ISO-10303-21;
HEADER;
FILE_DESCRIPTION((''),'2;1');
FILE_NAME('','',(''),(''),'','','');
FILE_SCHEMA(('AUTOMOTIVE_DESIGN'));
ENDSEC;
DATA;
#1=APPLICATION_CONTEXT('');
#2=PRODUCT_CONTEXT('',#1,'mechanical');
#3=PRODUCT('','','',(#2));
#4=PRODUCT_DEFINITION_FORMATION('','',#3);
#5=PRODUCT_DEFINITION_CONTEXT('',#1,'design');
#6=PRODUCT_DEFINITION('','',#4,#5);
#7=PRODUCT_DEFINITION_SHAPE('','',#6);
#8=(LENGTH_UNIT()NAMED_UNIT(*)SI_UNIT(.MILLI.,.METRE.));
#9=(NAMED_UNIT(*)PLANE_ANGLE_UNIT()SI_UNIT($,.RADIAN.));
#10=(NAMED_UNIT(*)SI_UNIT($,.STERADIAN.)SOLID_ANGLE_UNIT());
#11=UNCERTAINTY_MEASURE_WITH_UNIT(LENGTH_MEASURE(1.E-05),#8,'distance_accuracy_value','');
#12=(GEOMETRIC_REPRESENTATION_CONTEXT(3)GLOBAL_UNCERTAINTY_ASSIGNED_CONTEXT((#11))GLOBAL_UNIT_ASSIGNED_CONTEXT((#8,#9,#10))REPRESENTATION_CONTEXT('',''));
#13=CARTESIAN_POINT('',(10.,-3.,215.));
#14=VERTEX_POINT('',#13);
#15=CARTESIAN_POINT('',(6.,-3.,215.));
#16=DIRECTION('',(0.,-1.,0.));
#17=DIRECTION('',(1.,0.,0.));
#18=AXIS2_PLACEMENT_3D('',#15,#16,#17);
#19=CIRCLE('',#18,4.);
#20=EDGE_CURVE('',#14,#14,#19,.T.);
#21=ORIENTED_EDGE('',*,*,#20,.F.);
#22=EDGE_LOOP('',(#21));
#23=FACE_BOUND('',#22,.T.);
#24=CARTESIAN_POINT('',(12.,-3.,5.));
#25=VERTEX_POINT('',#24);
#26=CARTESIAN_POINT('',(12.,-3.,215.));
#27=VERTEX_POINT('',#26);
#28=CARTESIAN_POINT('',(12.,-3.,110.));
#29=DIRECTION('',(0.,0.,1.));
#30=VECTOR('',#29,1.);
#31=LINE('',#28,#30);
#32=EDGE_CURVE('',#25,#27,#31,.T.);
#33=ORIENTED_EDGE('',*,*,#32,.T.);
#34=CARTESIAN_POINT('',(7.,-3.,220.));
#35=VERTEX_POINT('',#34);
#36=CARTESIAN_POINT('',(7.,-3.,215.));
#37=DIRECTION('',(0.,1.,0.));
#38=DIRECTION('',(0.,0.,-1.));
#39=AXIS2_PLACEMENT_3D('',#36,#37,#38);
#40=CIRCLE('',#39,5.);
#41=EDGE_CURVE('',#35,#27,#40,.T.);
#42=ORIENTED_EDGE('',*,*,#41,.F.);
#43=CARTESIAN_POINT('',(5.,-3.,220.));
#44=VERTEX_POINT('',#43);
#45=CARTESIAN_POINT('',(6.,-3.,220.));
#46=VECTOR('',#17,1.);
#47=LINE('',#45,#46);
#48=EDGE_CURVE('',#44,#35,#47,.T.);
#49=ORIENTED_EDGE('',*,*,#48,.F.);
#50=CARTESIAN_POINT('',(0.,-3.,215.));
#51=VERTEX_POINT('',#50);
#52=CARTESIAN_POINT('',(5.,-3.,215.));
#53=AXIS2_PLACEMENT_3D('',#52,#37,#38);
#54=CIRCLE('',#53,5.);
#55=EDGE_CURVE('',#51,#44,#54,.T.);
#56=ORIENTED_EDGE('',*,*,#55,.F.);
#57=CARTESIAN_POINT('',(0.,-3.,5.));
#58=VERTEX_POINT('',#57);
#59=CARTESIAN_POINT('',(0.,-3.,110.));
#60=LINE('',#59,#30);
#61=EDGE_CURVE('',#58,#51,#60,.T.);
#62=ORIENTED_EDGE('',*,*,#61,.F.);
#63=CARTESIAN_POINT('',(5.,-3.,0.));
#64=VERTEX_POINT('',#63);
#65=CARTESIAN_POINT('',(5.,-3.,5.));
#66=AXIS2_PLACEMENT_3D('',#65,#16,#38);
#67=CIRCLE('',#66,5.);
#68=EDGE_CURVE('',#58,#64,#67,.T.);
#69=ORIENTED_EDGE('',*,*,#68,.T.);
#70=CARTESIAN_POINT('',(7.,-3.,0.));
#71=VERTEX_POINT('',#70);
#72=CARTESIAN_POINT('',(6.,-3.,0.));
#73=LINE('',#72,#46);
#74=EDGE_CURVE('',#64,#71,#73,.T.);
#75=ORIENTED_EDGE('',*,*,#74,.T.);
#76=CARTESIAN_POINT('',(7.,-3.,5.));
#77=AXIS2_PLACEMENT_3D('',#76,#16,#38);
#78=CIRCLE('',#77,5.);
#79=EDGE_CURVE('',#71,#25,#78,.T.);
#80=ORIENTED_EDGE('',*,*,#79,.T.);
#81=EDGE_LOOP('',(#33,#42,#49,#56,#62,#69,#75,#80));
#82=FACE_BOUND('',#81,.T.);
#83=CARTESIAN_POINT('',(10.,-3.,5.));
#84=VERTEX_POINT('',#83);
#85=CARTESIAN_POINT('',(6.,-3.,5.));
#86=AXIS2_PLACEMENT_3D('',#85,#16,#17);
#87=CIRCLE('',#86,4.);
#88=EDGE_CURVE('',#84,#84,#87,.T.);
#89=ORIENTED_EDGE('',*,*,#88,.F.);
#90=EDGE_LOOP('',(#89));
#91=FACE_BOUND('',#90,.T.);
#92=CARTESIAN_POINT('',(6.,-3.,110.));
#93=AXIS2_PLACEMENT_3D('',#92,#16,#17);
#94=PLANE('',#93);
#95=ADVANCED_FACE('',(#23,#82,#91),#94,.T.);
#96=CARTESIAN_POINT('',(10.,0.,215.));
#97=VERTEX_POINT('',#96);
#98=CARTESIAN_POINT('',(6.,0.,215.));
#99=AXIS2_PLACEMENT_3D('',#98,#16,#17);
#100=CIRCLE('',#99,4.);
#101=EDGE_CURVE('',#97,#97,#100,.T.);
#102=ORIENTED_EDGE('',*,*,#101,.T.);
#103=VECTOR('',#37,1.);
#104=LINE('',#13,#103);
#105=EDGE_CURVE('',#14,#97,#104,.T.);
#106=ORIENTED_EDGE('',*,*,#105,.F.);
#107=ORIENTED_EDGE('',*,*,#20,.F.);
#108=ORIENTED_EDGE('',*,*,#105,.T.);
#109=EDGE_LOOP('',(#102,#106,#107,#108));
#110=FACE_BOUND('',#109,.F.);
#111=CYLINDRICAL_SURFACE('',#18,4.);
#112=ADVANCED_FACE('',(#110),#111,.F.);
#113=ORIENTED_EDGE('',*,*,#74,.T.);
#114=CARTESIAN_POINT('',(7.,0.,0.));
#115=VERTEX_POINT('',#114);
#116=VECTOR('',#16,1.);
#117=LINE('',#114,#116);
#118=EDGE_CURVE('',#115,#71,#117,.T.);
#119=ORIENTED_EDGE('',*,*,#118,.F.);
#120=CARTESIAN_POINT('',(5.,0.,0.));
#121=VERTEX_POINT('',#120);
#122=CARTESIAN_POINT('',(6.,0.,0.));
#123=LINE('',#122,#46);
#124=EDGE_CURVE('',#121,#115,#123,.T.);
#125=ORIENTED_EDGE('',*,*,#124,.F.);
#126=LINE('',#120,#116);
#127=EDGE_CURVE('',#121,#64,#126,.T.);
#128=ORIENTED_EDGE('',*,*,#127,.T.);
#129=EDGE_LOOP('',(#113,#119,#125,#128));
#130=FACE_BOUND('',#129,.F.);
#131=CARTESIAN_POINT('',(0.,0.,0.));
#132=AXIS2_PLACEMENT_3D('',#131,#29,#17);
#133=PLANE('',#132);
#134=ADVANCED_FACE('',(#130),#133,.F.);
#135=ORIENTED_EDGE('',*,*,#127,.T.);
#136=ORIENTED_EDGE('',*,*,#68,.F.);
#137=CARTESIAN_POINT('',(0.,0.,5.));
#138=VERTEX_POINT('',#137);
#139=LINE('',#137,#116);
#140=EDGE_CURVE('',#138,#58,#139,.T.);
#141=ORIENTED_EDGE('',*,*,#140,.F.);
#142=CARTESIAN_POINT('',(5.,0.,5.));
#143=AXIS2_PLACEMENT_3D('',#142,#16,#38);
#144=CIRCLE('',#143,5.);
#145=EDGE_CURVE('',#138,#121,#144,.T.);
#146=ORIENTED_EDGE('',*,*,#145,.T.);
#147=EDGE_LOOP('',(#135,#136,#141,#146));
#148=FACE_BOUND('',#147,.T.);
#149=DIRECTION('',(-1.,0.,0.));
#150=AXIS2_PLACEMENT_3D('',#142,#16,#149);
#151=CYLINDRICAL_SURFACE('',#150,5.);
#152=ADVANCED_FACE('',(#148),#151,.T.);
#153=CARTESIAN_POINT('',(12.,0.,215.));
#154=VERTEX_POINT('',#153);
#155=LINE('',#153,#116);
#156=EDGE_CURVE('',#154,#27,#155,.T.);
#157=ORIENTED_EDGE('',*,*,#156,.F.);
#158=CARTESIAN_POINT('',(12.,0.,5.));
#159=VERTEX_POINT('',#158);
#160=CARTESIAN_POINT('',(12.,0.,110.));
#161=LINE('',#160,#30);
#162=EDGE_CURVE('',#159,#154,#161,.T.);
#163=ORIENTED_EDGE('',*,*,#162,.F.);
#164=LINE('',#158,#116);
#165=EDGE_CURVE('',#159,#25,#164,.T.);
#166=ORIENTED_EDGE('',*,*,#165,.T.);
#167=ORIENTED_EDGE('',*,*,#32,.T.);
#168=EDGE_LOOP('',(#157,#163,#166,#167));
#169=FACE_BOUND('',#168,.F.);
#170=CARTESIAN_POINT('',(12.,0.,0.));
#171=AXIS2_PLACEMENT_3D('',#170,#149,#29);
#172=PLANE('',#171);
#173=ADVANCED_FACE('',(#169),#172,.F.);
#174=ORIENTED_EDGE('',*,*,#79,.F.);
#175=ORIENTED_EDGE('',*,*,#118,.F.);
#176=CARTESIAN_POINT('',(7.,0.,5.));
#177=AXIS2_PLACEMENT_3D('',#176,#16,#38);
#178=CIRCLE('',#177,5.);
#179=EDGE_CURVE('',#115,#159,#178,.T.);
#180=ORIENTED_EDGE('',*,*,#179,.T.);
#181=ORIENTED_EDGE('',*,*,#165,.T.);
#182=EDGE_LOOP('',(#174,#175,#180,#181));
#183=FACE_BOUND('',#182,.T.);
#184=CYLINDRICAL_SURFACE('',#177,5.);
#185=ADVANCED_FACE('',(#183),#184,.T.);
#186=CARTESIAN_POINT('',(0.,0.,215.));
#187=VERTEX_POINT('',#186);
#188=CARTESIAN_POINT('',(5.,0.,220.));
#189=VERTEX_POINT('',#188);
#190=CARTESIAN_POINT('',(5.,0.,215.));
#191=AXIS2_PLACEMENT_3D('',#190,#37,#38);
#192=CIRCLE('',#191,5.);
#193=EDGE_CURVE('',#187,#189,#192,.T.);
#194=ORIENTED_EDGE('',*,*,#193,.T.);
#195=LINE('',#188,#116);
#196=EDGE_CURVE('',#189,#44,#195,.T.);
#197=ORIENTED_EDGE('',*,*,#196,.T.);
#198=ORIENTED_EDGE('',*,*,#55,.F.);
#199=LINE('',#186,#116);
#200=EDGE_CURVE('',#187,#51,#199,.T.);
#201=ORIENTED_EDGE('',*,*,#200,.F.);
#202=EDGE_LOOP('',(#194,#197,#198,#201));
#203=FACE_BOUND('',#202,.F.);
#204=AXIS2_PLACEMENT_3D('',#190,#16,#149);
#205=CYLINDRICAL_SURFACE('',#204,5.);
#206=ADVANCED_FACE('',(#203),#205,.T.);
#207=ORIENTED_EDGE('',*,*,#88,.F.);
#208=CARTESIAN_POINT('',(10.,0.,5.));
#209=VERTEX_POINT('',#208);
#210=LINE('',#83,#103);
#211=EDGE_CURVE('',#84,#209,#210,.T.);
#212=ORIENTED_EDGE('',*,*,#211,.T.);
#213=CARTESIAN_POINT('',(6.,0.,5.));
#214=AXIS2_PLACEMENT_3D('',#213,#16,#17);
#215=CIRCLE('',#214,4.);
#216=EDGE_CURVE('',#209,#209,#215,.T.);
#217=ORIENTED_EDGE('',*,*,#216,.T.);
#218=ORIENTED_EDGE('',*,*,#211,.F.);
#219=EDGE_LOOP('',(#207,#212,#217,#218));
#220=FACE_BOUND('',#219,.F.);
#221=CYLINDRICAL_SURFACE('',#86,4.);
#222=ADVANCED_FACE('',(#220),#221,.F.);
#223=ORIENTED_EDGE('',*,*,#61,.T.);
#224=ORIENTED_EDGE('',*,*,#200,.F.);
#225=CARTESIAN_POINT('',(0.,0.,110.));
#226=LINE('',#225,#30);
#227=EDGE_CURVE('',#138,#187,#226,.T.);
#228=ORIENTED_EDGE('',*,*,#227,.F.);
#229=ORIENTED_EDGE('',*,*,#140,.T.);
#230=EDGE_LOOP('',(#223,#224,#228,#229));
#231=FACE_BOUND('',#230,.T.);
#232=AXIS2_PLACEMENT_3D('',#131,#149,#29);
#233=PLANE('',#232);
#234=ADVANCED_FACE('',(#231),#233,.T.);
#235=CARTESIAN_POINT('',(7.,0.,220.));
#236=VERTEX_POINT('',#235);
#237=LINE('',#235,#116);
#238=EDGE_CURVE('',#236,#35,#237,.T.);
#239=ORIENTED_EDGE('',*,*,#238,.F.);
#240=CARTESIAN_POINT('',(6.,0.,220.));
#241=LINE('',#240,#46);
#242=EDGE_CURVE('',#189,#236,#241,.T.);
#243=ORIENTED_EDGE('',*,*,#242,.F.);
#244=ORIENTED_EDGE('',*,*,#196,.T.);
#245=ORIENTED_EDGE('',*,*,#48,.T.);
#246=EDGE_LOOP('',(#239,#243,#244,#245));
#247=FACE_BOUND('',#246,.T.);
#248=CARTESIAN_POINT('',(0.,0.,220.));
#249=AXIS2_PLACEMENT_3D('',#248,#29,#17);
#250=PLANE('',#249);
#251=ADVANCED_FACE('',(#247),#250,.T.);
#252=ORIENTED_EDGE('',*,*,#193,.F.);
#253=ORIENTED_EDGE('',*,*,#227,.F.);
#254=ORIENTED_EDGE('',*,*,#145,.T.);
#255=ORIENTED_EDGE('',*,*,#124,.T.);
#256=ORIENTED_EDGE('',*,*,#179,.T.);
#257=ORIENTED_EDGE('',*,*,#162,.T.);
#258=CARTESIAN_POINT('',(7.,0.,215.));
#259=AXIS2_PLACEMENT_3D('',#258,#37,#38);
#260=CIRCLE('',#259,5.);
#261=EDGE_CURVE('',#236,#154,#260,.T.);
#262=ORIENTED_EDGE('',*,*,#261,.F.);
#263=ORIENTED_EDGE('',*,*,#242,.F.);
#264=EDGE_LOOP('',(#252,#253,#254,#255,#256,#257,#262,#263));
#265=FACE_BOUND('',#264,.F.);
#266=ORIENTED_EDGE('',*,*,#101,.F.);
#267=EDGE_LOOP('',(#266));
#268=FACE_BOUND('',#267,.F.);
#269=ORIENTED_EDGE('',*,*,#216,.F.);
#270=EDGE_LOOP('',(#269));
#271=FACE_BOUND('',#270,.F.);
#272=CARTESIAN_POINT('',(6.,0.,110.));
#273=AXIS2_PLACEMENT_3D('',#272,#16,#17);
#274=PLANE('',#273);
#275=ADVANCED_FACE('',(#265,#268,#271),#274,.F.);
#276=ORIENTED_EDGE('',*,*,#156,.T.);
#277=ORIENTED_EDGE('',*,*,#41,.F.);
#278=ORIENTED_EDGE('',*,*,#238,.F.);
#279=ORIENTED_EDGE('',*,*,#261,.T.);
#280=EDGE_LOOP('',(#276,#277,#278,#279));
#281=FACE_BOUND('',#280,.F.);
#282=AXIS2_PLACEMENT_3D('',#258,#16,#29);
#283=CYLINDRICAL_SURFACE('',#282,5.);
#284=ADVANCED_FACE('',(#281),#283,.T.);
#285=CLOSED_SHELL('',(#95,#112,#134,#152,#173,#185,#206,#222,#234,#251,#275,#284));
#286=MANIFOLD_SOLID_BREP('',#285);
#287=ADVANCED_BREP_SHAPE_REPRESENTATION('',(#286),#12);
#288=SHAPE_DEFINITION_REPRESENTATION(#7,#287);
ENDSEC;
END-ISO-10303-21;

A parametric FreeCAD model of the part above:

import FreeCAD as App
import Part
import Sketcher
from FreeCAD import Vector


def edges_at(feature, points):
    """Names of the edges that pass closest to the given points."""
    edges = feature.Shape.Edges
    near = lambda p: min(range(len(edges)), key=lambda i: edges[i].distToShape(Part.Vertex(*p))[0])
    return sorted({f"Edge{near(p) + 1}" for p in points})


def add_polygon(sketch, points):
    """Adds a closed chain of lines whose ends are joined by coincident constraints."""
    first, n = sketch.GeometryCount, len(points)
    for a, b in zip(points, points[1:] + points[:1]):
        sketch.addGeometry(Part.LineSegment(App.Vector(*a, 0), App.Vector(*b, 0)), False)
    for i in range(n):
        sketch.addConstraint(Sketcher.Constraint("Coincident", first + i, 2, first + (i + 1) % n, 1))

doc = App.newDocument("Part")
body = doc.addObject("PartDesign::Body", "Body")

sketch1 = doc.addObject("Sketcher::SketchObject", "Sketch")
body.addObject(sketch1)
sketch1.AttachmentSupport = (doc.XZ_Plane, [""])
sketch1.MapMode = "FlatFace"
add_polygon(sketch1, [(0, 220), (0, 0), (12, 0), (12, 220)])
sketch1.addConstraint(Sketcher.Constraint("Vertical", 0))
sketch1.addConstraint(Sketcher.Constraint("Horizontal", 1))
sketch1.addConstraint(Sketcher.Constraint("Vertical", 2))
sketch1.addConstraint(Sketcher.Constraint("Horizontal", 3))
sketch1.addConstraint(Sketcher.Constraint("Coincident", 0, 2, -1, 1))
sketch1.addConstraint(Sketcher.Constraint("DistanceX", 1, 1, 1, 2, 12.0))
sketch1.addConstraint(Sketcher.Constraint("DistanceY", 0, 2, 0, 1, 220.0))
pad1 = doc.addObject("PartDesign::Pad", "Pad")
body.addObject(pad1)
pad1.Profile = sketch1
pad1.Length = 3
doc.recompute()

fillet = doc.addObject("PartDesign::Fillet", "Fillet")
body.addObject(fillet)
fillet.Base = (pad1, edges_at(pad1, [(0, -1.5, 220)]))
fillet.Radius = 5
doc.recompute()

fillet2 = doc.addObject("PartDesign::Fillet", "Fillet001")
body.addObject(fillet2)
fillet2.Base = (fillet, edges_at(fillet, [(12, -1.5, 220)]))
fillet2.Radius = 5
doc.recompute()

fillet3 = doc.addObject("PartDesign::Fillet", "Fillet002")
body.addObject(fillet3)
fillet3.Base = (fillet2, edges_at(fillet2, [(0, -1.5, 0)]))
fillet3.Radius = 5
doc.recompute()

fillet4 = doc.addObject("PartDesign::Fillet", "Fillet003")
body.addObject(fillet4)
fillet4.Base = (fillet3, edges_at(fillet3, [(12, -1.5, 0)]))
fillet4.Radius = 5

sketch2 = doc.addObject("Sketcher::SketchObject", "Sketch001")
body.addObject(sketch2)
sketch2.AttachmentSupport = (doc.XZ_Plane, [""])
sketch2.MapMode = "FlatFace"
sketch2.AttachmentOffset = App.Placement(Vector(0, 0, 3), App.Rotation())
sketch2.addGeometry(Part.Circle(Vector(6, 215, 0), Vector(0, 0, 1), 4), False)
sketch2.addGeometry(Part.Circle(Vector(6, 5, 0), Vector(0, 0, 1), 4), False)
sketch2.addConstraint(Sketcher.Constraint("Equal", 0, 1))
sketch2.addConstraint(Sketcher.Constraint("Vertical", 0, 3, 1, 3))
sketch2.addConstraint(Sketcher.Constraint("Diameter", 0, 8.0))
sketch2.addConstraint(Sketcher.Constraint("DistanceX", -1, 1, 0, 3, 6.0))
sketch2.addConstraint(Sketcher.Constraint("DistanceY", -1, 1, 0, 3, 215.0))
sketch2.addConstraint(Sketcher.Constraint("DistanceY", -1, 1, 1, 3, 5.0))
pocket1 = doc.addObject("PartDesign::Pocket", "Pocket")
body.addObject(pocket1)
pocket1.Profile = sketch2
pocket1.Length = 25

doc.recompute()
